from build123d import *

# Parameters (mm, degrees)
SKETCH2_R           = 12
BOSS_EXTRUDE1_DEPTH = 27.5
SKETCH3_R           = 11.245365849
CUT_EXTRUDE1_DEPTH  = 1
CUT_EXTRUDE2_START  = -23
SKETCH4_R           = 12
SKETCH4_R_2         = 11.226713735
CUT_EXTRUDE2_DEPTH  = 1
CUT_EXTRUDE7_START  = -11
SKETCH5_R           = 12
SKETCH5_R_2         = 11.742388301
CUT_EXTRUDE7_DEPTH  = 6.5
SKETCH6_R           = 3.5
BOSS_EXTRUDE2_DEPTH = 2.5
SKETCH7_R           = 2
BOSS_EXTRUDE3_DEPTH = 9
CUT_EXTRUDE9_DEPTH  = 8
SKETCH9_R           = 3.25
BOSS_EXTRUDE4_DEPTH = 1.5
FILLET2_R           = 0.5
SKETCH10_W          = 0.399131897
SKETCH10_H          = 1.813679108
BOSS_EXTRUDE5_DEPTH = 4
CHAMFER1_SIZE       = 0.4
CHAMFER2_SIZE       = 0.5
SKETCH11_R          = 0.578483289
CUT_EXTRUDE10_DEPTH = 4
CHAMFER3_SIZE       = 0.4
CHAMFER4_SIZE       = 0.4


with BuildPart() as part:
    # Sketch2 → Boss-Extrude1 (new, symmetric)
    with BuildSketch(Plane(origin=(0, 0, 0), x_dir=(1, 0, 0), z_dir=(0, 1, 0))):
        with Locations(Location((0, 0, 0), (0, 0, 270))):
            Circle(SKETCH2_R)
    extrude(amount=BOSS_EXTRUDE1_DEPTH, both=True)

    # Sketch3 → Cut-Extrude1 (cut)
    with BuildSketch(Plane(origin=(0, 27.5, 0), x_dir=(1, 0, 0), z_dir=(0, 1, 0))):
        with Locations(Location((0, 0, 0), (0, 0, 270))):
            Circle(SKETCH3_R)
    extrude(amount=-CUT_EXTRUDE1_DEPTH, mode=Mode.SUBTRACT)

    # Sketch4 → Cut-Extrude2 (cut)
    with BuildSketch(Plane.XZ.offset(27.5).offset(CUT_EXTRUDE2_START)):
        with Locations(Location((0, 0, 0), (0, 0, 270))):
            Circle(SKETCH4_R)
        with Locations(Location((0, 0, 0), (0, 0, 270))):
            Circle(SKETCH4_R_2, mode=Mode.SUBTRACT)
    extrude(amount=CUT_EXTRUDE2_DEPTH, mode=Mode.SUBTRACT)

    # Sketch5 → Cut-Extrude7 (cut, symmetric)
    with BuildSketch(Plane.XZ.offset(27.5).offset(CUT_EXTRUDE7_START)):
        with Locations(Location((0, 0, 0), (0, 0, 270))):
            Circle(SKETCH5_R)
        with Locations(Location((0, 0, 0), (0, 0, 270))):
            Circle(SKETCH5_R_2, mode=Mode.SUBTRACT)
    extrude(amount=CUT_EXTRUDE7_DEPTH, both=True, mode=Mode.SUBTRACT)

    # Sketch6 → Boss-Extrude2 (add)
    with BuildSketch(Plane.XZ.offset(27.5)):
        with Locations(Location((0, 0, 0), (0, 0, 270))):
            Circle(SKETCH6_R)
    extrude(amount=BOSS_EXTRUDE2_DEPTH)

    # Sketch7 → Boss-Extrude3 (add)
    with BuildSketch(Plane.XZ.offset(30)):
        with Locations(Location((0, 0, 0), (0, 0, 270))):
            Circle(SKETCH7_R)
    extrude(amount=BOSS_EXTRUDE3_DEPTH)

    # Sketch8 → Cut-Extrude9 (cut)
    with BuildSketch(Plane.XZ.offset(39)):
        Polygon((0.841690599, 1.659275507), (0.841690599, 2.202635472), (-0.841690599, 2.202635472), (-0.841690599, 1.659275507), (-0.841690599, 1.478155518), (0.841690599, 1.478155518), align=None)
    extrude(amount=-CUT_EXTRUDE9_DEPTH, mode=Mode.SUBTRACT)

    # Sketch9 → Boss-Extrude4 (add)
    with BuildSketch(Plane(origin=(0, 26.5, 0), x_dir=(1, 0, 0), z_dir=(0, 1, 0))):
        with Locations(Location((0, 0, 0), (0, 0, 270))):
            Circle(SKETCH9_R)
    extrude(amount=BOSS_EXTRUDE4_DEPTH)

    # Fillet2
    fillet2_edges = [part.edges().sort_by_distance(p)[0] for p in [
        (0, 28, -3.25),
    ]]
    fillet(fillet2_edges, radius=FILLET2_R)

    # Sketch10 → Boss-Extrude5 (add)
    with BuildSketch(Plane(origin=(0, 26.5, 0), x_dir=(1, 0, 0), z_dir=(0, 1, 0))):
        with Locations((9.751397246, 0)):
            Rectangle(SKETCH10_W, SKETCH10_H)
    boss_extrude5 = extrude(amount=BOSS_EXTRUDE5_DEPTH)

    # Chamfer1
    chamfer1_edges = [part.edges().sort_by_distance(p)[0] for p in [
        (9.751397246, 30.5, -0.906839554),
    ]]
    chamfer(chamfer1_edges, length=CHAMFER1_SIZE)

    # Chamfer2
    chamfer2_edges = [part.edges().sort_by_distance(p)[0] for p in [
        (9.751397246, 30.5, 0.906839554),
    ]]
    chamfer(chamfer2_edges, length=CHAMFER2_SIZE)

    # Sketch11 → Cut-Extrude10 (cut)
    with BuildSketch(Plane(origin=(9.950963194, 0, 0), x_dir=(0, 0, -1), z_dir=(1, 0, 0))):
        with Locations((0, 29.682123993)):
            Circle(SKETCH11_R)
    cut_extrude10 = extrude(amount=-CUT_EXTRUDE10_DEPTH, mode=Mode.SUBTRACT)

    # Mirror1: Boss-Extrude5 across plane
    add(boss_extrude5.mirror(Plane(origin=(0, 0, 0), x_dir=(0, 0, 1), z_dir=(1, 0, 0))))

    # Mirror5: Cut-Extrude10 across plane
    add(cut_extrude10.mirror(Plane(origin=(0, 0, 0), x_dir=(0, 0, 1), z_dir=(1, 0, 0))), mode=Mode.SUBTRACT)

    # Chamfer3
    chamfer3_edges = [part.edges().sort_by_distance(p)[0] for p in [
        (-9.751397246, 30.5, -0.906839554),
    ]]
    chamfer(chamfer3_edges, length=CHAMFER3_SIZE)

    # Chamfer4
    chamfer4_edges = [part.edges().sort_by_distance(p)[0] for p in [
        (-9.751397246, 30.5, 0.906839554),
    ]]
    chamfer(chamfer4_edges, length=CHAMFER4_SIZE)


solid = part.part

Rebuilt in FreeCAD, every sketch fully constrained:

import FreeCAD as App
import Part
import Sketcher
from FreeCAD import Vector
Q = App.Units.Quantity


def edges_at(feature, points):
    """Names of the edges that pass closest to the given points."""
    edges = feature.Shape.Edges
    near = lambda p: min(range(len(edges)), key=lambda i: edges[i].distToShape(Part.Vertex(*p))[0])
    return sorted({f"Edge{near(p) + 1}" for p in points})

doc = App.newDocument("Part")
body = doc.addObject("PartDesign::Body", "Body")

# Sketch on XZ plane
sketch1 = body.newObject("Sketcher::SketchObject", "Sketch")
sketch1.AttachmentSupport = (doc.getObject("XZ_Plane"), [""])
sketch1.MapMode = "FlatFace"
sketch1.addGeometry(Part.Circle(Vector(0, 0, 0), Vector(0, 0, 1), 12), False)
sketch1.addConstraint([
    Sketcher.Constraint("Coincident", 0, 3, -1, 1),
    Sketcher.Constraint("Diameter", 0, Q("24 mm")),
])
pad1 = body.newObject("PartDesign::Pad", "Pad")
pad1.Profile = sketch1
pad1.Length = 55
pad1.Midplane = True

# Sketch on XZ plane
sketch2 = body.newObject("Sketcher::SketchObject", "Sketch001")
sketch2.AttachmentSupport = (doc.getObject("XZ_Plane"), [""])
sketch2.MapMode = "FlatFace"
sketch2.AttachmentOffset = App.Placement(Vector(0, 0, -27.5), App.Rotation())
sketch2.addGeometry(Part.Circle(Vector(0, 0, 0), Vector(0, 0, 1), 11.245366), False)
sketch2.addConstraint([
    Sketcher.Constraint("Coincident", 0, 3, -1, 1),
    Sketcher.Constraint("Diameter", 0, Q("22.490732 mm")),
])
pocket1 = body.newObject("PartDesign::Pocket", "Pocket")
pocket1.Profile = sketch2
pocket1.Length = 1
pocket1.Reversed = True

# Sketch on XZ plane
sketch3 = body.newObject("Sketcher::SketchObject", "Sketch002")
sketch3.AttachmentSupport = (doc.getObject("XZ_Plane"), [""])
sketch3.MapMode = "FlatFace"
sketch3.AttachmentOffset = App.Placement(Vector(0, 0, 4.5), App.Rotation())
sketch3.addGeometry([
    Part.Circle(Vector(0, 0, 0), Vector(0, 0, 1), 12),
    Part.Circle(Vector(0, 0, 0), Vector(0, 0, 1), 11.226714),
], False)
sketch3.addConstraint([
    Sketcher.Constraint("Coincident", 0, 3, -1, 1),
    Sketcher.Constraint("Coincident", 1, 3, -1, 1),
    Sketcher.Constraint("Diameter", 0, Q("24 mm")),
    Sketcher.Constraint("Diameter", 1, Q("22.453427 mm")),
])
pocket2 = body.newObject("PartDesign::Pocket", "Pocket001")
pocket2.Profile = sketch3
pocket2.Length = 1
pocket2.Reversed = True

# Sketch on XZ plane
sketch4 = body.newObject("Sketcher::SketchObject", "Sketch003")
sketch4.AttachmentSupport = (doc.getObject("XZ_Plane"), [""])
sketch4.MapMode = "FlatFace"
sketch4.AttachmentOffset = App.Placement(Vector(0, 0, 16.5), App.Rotation())
sketch4.addGeometry([
    Part.Circle(Vector(0, 0, 0), Vector(0, 0, 1), 12),
    Part.Circle(Vector(0, 0, 0), Vector(0, 0, 1), 11.742388),
], False)
sketch4.addConstraint([
    Sketcher.Constraint("Coincident", 0, 3, -1, 1),
    Sketcher.Constraint("Coincident", 1, 3, -1, 1),
    Sketcher.Constraint("Diameter", 0, Q("24 mm")),
    Sketcher.Constraint("Diameter", 1, Q("23.484777 mm")),
])
pocket3 = body.newObject("PartDesign::Pocket", "Pocket002")
pocket3.Profile = sketch4
pocket3.Length = 13
pocket3.Midplane = True

# Sketch on XZ plane
sketch5 = body.newObject("Sketcher::SketchObject", "Sketch004")
sketch5.AttachmentSupport = (doc.getObject("XZ_Plane"), [""])
sketch5.MapMode = "FlatFace"
sketch5.AttachmentOffset = App.Placement(Vector(0, 0, 27.5), App.Rotation())
sketch5.addGeometry(Part.Circle(Vector(0, 0, 0), Vector(0, 0, 1), 3.5), False)
sketch5.addConstraint([
    Sketcher.Constraint("Coincident", 0, 3, -1, 1),
    Sketcher.Constraint("Diameter", 0, Q("7 mm")),
])
pad2 = body.newObject("PartDesign::Pad", "Pad001")
pad2.Profile = sketch5
pad2.Length = 2.5

# Sketch on XZ plane
sketch6 = body.newObject("Sketcher::SketchObject", "Sketch005")
sketch6.AttachmentSupport = (doc.getObject("XZ_Plane"), [""])
sketch6.MapMode = "FlatFace"
sketch6.AttachmentOffset = App.Placement(Vector(0, 0, 30), App.Rotation())
sketch6.addGeometry(Part.Circle(Vector(0, 0, 0), Vector(0, 0, 1), 2), False)
sketch6.addConstraint([
    Sketcher.Constraint("Coincident", 0, 3, -1, 1),
    Sketcher.Constraint("Diameter", 0, Q("4 mm")),
])
pad3 = body.newObject("PartDesign::Pad", "Pad002")
pad3.Profile = sketch6
pad3.Length = 9

# Sketch on XZ plane
sketch7 = body.newObject("Sketcher::SketchObject", "Sketch006")
sketch7.AttachmentSupport = (doc.getObject("XZ_Plane"), [""])
sketch7.MapMode = "FlatFace"
sketch7.AttachmentOffset = App.Placement(Vector(0, 0, 39), App.Rotation())
sketch7.addGeometry([
    Part.LineSegment(Vector(0.841691, 2.202635, 0), Vector(-0.841691, 2.202635, 0)),
    Part.LineSegment(Vector(-0.841691, 2.202635, 0), Vector(-0.841691, 1.478156, 0)),
    Part.LineSegment(Vector(-0.841691, 1.478156, 0), Vector(0.841691, 1.478156, 0)),
    Part.LineSegment(Vector(0.841691, 1.478156, 0), Vector(0.841691, 2.202635, 0)),
], False)
sketch7.addConstraint([
    Sketcher.Constraint("Coincident", 0, 2, 1, 1),
    Sketcher.Constraint("Coincident", 1, 2, 2, 1),
    Sketcher.Constraint("Coincident", 2, 2, 3, 1),
    Sketcher.Constraint("Coincident", 3, 2, 0, 1),
    Sketcher.Constraint("Horizontal", 0),
    Sketcher.Constraint("Vertical", 1),
    Sketcher.Constraint("Horizontal", 2),
    Sketcher.Constraint("Vertical", 3),
    Sketcher.Constraint("DistanceX", 0, 2, 0, 1, Q("1.683381 mm")),
    Sketcher.Constraint("DistanceY", 1, 2, 1, 1, Q("0.72448 mm")),
    Sketcher.Constraint("DistanceX", 0, 2, -1, 1, Q("0.841691 mm")),
    Sketcher.Constraint("DistanceY", -1, 1, 0, 2, Q("2.202635 mm")),
])
pocket4 = body.newObject("PartDesign::Pocket", "Pocket003")
pocket4.Profile = sketch7
pocket4.Length = 8

# Sketch on XZ plane
sketch8 = body.newObject("Sketcher::SketchObject", "Sketch007")
sketch8.AttachmentSupport = (doc.getObject("XZ_Plane"), [""])
sketch8.MapMode = "FlatFace"
sketch8.AttachmentOffset = App.Placement(Vector(0, 0, -26.5), App.Rotation())
sketch8.addGeometry(Part.Circle(Vector(0, 0, 0), Vector(0, 0, 1), 3.25), False)
sketch8.addConstraint([
    Sketcher.Constraint("Coincident", 0, 3, -1, 1),
    Sketcher.Constraint("Diameter", 0, Q("6.5 mm")),
])
pad4 = body.newObject("PartDesign::Pad", "Pad003")
pad4.Profile = sketch8
pad4.Length = 1.5
pad4.Reversed = True
doc.recompute()

fillet = body.newObject("PartDesign::Fillet", "Fillet")
fillet.Base = (pad4, edges_at(pad4, [(0, 28, -3.25)]))
fillet.Radius = 0.5

# Sketch on XZ plane
sketch9 = body.newObject("Sketcher::SketchObject", "Sketch008")
sketch9.AttachmentSupport = (doc.getObject("XZ_Plane"), [""])
sketch9.MapMode = "FlatFace"
sketch9.AttachmentOffset = App.Placement(Vector(0, 0, -26.5), App.Rotation())
sketch9.addGeometry([
    Part.LineSegment(Vector(9.551831, -0.90684, 0), Vector(9.551831, 0.90684, 0)),
    Part.LineSegment(Vector(9.551831, 0.90684, 0), Vector(9.950963, 0.90684, 0)),
    Part.LineSegment(Vector(9.950963, 0.90684, 0), Vector(9.950963, -0.90684, 0)),
    Part.LineSegment(Vector(9.950963, -0.90684, 0), Vector(9.551831, -0.90684, 0)),
], False)
sketch9.addConstraint([
    Sketcher.Constraint("Coincident", 0, 2, 1, 1),
    Sketcher.Constraint("Coincident", 1, 2, 2, 1),
    Sketcher.Constraint("Coincident", 2, 2, 3, 1),
    Sketcher.Constraint("Coincident", 3, 2, 0, 1),
    Sketcher.Constraint("Vertical", 0),
    Sketcher.Constraint("Horizontal", 1),
    Sketcher.Constraint("Vertical", 2),
    Sketcher.Constraint("Horizontal", 3),
    Sketcher.Constraint("DistanceX", 1, 1, 1, 2, Q("0.399132 mm")),
    Sketcher.Constraint("DistanceY", 0, 1, 0, 2, Q("1.813679 mm")),
    Sketcher.Constraint("DistanceX", -1, 1, 0, 2, Q("9.551831 mm")),
    Sketcher.Constraint("DistanceY", -1, 1, 0, 2, Q("0.90684 mm")),
])
pad5 = body.newObject("PartDesign::Pad", "Pad004")
pad5.Profile = sketch9
pad5.Length = 4
pad5.Reversed = True
doc.recompute()

chamfer = body.newObject("PartDesign::Chamfer", "Chamfer")
chamfer.Base = (pad5, edges_at(pad5, [(9.751, 30.5, -0.907)]))
chamfer.Size = 0.4
doc.recompute()

chamfer2 = body.newObject("PartDesign::Chamfer", "Chamfer001")
chamfer2.Base = (chamfer, edges_at(chamfer, [(9.751, 30.5, 0.907)]))
chamfer2.Size = 0.5

# Sketch on YZ plane
sketch10 = body.newObject("Sketcher::SketchObject", "Sketch009")
sketch10.AttachmentSupport = (doc.getObject("YZ_Plane"), [""])
sketch10.MapMode = "FlatFace"
sketch10.AttachmentOffset = App.Placement(Vector(0, 0, 9.950963), App.Rotation())
sketch10.addGeometry(Part.Circle(Vector(29.682124, 0, 0), Vector(0, 0, 1), 0.578483), False)
sketch10.addConstraint([
    Sketcher.Constraint("PointOnObject", 0, 3, -1),
    Sketcher.Constraint("Diameter", 0, Q("1.156967 mm")),
    Sketcher.Constraint("DistanceX", -1, 1, 0, 3, Q("29.682124 mm")),
])
pocket5 = body.newObject("PartDesign::Pocket", "Pocket004")
pocket5.Profile = sketch10
pocket5.Length = 4
doc.recompute()

mirrored = body.newObject("PartDesign::Mirrored", "Mirrored")
mirrored.Originals = [pad5]
mirrored.MirrorPlane = (doc.getObject("YZ_Plane"), [""])
body.Tip = mirrored
doc.recompute()

mirrored2 = body.newObject("PartDesign::Mirrored", "Mirrored001")
mirrored2.Originals = [pocket5]
mirrored2.MirrorPlane = (doc.getObject("YZ_Plane"), [""])
body.Tip = mirrored2
doc.recompute()

chamfer3 = body.newObject("PartDesign::Chamfer", "Chamfer002")
chamfer3.Base = (mirrored2, edges_at(mirrored2, [(-9.751, 30.5, -0.907)]))
chamfer3.Size = 0.4
doc.recompute()

chamfer4 = body.newObject("PartDesign::Chamfer", "Chamfer003")
chamfer4.Base = (chamfer3, edges_at(chamfer3, [(-9.751, 30.5, 0.907)]))
chamfer4.Size = 0.4

doc.recompute()
